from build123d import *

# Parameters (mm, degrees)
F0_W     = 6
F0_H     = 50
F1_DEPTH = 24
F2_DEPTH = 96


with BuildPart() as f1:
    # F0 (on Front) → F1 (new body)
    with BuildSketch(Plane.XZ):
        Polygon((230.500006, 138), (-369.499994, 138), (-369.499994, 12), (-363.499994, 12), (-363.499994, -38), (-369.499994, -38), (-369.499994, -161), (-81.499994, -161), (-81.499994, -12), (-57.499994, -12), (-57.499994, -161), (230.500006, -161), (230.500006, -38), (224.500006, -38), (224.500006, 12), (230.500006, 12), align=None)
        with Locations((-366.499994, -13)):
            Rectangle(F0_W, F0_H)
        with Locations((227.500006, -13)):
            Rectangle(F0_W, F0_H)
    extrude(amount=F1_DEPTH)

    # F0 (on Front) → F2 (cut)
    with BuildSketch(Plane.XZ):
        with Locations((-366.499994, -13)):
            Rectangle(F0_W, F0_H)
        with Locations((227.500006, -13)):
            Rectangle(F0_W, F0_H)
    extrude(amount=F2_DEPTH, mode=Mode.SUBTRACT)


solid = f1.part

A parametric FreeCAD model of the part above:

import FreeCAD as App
import Part
import Sketcher

V = App.Vector


def add_polygon(sketch, points):
    """Adds a closed chain of lines whose ends are joined by coincident constraints."""
    first, n = sketch.GeometryCount, len(points)
    for a, b in zip(points, points[1:] + points[:1]):
        sketch.addGeometry(Part.LineSegment(App.Vector(*a, 0), App.Vector(*b, 0)), False)
    for i in range(n):
        sketch.addConstraint(Sketcher.Constraint("Coincident", first + i, 2, first + (i + 1) % n, 1))

doc = App.newDocument("Part")
body = doc.addObject("PartDesign::Body", "Body")

# Sketch on XZ plane
sketch1 = doc.addObject("Sketcher::SketchObject", "Sketch")
body.addObject(sketch1)
sketch1.AttachmentSupport = (doc.XZ_Plane, [""])
sketch1.MapMode = "FlatFace"
add_polygon(sketch1, [(231, 138), (-369, 138), (-369, -161), (-81, -161), (-81, -12), (-57, -12), (-57, -161), (231, -161)])  # lines 0-7
sketch1.addConstraint(Sketcher.Constraint("Horizontal", 0))
sketch1.addConstraint(Sketcher.Constraint("Vertical", 1))
sketch1.addConstraint(Sketcher.Constraint("Horizontal", 2))
sketch1.addConstraint(Sketcher.Constraint("Vertical", 3))
sketch1.addConstraint(Sketcher.Constraint("Horizontal", 4))
sketch1.addConstraint(Sketcher.Constraint("Vertical", 5))
sketch1.addConstraint(Sketcher.Constraint("Horizontal", 6))
sketch1.addConstraint(Sketcher.Constraint("Vertical", 7))
sketch1.addConstraint(Sketcher.Constraint("Horizontal", 2, 2, 5, 2))
sketch1.addConstraint(Sketcher.Constraint("Equal", 2, 6))
sketch1.addConstraint(Sketcher.Constraint("DistanceX", 0, 2, 0, 1, 600.0))
sketch1.addConstraint(Sketcher.Constraint("DistanceX", 2, 1, 2, 2, 288.0))
sketch1.addConstraint(Sketcher.Constraint("DistanceY", 1, 2, 1, 1, 299.0))
sketch1.addConstraint(Sketcher.Constraint("DistanceY", 3, 1, 3, 2, 149.0))
sketch1.addConstraint(Sketcher.Constraint("DistanceY", -1, 1, 0, 2, 138.0))
sketch1.addConstraint(Sketcher.Constraint("DistanceX", 0, 2, -1, 1, 369.499994))
pad1 = doc.addObject("PartDesign::Pad", "Pad")
body.addObject(pad1)
pad1.Profile = sketch1
pad1.Length = 24

# Sketch on XZ plane
sketch2 = doc.addObject("Sketcher::SketchObject", "Sketch001")
body.addObject(sketch2)
sketch2.AttachmentSupport = (doc.XZ_Plane, [""])
sketch2.MapMode = "FlatFace"
add_polygon(sketch2, [(-369, 12), (-369, -38), (-363, -38), (-363, 12)])  # lines 0-3
add_polygon(sketch2, [(225, 12), (225, -38), (231, -38), (231, 12)])  # lines 4-7
sketch2.addConstraint(Sketcher.Constraint("Vertical", 0))
sketch2.addConstraint(Sketcher.Constraint("Horizontal", 1))
sketch2.addConstraint(Sketcher.Constraint("Vertical", 2))
sketch2.addConstraint(Sketcher.Constraint("Horizontal", 3))
sketch2.addConstraint(Sketcher.Constraint("Vertical", 4))
sketch2.addConstraint(Sketcher.Constraint("Horizontal", 5))
sketch2.addConstraint(Sketcher.Constraint("Vertical", 6))
sketch2.addConstraint(Sketcher.Constraint("Horizontal", 7))
sketch2.addConstraint(Sketcher.Constraint("Horizontal", 1, 2, 4, 2))
sketch2.addConstraint(Sketcher.Constraint("Horizontal", 3, 2, 6, 2))
sketch2.addConstraint(Sketcher.Constraint("Equal", 3, 5))
sketch2.addConstraint(Sketcher.Constraint("DistanceX", 1, 1, 1, 2, 6.0))
sketch2.addConstraint(Sketcher.Constraint("DistanceY", 0, 2, 0, 1, 50.0))
sketch2.addConstraint(Sketcher.Constraint("DistanceY", 0, 2, -1, 1, 38.0))
sketch2.addConstraint(Sketcher.Constraint("DistanceX", 1, 2, 4, 2, 588.0))
sketch2.addConstraint(Sketcher.Constraint("DistanceX", 0, 2, -1, 1, 369.499994))
pocket1 = doc.addObject("PartDesign::Pocket", "Pocket")
body.addObject(pocket1)
pocket1.Profile = sketch2
pocket1.Length = 96
pocket1.Reversed = True

doc.recompute()
